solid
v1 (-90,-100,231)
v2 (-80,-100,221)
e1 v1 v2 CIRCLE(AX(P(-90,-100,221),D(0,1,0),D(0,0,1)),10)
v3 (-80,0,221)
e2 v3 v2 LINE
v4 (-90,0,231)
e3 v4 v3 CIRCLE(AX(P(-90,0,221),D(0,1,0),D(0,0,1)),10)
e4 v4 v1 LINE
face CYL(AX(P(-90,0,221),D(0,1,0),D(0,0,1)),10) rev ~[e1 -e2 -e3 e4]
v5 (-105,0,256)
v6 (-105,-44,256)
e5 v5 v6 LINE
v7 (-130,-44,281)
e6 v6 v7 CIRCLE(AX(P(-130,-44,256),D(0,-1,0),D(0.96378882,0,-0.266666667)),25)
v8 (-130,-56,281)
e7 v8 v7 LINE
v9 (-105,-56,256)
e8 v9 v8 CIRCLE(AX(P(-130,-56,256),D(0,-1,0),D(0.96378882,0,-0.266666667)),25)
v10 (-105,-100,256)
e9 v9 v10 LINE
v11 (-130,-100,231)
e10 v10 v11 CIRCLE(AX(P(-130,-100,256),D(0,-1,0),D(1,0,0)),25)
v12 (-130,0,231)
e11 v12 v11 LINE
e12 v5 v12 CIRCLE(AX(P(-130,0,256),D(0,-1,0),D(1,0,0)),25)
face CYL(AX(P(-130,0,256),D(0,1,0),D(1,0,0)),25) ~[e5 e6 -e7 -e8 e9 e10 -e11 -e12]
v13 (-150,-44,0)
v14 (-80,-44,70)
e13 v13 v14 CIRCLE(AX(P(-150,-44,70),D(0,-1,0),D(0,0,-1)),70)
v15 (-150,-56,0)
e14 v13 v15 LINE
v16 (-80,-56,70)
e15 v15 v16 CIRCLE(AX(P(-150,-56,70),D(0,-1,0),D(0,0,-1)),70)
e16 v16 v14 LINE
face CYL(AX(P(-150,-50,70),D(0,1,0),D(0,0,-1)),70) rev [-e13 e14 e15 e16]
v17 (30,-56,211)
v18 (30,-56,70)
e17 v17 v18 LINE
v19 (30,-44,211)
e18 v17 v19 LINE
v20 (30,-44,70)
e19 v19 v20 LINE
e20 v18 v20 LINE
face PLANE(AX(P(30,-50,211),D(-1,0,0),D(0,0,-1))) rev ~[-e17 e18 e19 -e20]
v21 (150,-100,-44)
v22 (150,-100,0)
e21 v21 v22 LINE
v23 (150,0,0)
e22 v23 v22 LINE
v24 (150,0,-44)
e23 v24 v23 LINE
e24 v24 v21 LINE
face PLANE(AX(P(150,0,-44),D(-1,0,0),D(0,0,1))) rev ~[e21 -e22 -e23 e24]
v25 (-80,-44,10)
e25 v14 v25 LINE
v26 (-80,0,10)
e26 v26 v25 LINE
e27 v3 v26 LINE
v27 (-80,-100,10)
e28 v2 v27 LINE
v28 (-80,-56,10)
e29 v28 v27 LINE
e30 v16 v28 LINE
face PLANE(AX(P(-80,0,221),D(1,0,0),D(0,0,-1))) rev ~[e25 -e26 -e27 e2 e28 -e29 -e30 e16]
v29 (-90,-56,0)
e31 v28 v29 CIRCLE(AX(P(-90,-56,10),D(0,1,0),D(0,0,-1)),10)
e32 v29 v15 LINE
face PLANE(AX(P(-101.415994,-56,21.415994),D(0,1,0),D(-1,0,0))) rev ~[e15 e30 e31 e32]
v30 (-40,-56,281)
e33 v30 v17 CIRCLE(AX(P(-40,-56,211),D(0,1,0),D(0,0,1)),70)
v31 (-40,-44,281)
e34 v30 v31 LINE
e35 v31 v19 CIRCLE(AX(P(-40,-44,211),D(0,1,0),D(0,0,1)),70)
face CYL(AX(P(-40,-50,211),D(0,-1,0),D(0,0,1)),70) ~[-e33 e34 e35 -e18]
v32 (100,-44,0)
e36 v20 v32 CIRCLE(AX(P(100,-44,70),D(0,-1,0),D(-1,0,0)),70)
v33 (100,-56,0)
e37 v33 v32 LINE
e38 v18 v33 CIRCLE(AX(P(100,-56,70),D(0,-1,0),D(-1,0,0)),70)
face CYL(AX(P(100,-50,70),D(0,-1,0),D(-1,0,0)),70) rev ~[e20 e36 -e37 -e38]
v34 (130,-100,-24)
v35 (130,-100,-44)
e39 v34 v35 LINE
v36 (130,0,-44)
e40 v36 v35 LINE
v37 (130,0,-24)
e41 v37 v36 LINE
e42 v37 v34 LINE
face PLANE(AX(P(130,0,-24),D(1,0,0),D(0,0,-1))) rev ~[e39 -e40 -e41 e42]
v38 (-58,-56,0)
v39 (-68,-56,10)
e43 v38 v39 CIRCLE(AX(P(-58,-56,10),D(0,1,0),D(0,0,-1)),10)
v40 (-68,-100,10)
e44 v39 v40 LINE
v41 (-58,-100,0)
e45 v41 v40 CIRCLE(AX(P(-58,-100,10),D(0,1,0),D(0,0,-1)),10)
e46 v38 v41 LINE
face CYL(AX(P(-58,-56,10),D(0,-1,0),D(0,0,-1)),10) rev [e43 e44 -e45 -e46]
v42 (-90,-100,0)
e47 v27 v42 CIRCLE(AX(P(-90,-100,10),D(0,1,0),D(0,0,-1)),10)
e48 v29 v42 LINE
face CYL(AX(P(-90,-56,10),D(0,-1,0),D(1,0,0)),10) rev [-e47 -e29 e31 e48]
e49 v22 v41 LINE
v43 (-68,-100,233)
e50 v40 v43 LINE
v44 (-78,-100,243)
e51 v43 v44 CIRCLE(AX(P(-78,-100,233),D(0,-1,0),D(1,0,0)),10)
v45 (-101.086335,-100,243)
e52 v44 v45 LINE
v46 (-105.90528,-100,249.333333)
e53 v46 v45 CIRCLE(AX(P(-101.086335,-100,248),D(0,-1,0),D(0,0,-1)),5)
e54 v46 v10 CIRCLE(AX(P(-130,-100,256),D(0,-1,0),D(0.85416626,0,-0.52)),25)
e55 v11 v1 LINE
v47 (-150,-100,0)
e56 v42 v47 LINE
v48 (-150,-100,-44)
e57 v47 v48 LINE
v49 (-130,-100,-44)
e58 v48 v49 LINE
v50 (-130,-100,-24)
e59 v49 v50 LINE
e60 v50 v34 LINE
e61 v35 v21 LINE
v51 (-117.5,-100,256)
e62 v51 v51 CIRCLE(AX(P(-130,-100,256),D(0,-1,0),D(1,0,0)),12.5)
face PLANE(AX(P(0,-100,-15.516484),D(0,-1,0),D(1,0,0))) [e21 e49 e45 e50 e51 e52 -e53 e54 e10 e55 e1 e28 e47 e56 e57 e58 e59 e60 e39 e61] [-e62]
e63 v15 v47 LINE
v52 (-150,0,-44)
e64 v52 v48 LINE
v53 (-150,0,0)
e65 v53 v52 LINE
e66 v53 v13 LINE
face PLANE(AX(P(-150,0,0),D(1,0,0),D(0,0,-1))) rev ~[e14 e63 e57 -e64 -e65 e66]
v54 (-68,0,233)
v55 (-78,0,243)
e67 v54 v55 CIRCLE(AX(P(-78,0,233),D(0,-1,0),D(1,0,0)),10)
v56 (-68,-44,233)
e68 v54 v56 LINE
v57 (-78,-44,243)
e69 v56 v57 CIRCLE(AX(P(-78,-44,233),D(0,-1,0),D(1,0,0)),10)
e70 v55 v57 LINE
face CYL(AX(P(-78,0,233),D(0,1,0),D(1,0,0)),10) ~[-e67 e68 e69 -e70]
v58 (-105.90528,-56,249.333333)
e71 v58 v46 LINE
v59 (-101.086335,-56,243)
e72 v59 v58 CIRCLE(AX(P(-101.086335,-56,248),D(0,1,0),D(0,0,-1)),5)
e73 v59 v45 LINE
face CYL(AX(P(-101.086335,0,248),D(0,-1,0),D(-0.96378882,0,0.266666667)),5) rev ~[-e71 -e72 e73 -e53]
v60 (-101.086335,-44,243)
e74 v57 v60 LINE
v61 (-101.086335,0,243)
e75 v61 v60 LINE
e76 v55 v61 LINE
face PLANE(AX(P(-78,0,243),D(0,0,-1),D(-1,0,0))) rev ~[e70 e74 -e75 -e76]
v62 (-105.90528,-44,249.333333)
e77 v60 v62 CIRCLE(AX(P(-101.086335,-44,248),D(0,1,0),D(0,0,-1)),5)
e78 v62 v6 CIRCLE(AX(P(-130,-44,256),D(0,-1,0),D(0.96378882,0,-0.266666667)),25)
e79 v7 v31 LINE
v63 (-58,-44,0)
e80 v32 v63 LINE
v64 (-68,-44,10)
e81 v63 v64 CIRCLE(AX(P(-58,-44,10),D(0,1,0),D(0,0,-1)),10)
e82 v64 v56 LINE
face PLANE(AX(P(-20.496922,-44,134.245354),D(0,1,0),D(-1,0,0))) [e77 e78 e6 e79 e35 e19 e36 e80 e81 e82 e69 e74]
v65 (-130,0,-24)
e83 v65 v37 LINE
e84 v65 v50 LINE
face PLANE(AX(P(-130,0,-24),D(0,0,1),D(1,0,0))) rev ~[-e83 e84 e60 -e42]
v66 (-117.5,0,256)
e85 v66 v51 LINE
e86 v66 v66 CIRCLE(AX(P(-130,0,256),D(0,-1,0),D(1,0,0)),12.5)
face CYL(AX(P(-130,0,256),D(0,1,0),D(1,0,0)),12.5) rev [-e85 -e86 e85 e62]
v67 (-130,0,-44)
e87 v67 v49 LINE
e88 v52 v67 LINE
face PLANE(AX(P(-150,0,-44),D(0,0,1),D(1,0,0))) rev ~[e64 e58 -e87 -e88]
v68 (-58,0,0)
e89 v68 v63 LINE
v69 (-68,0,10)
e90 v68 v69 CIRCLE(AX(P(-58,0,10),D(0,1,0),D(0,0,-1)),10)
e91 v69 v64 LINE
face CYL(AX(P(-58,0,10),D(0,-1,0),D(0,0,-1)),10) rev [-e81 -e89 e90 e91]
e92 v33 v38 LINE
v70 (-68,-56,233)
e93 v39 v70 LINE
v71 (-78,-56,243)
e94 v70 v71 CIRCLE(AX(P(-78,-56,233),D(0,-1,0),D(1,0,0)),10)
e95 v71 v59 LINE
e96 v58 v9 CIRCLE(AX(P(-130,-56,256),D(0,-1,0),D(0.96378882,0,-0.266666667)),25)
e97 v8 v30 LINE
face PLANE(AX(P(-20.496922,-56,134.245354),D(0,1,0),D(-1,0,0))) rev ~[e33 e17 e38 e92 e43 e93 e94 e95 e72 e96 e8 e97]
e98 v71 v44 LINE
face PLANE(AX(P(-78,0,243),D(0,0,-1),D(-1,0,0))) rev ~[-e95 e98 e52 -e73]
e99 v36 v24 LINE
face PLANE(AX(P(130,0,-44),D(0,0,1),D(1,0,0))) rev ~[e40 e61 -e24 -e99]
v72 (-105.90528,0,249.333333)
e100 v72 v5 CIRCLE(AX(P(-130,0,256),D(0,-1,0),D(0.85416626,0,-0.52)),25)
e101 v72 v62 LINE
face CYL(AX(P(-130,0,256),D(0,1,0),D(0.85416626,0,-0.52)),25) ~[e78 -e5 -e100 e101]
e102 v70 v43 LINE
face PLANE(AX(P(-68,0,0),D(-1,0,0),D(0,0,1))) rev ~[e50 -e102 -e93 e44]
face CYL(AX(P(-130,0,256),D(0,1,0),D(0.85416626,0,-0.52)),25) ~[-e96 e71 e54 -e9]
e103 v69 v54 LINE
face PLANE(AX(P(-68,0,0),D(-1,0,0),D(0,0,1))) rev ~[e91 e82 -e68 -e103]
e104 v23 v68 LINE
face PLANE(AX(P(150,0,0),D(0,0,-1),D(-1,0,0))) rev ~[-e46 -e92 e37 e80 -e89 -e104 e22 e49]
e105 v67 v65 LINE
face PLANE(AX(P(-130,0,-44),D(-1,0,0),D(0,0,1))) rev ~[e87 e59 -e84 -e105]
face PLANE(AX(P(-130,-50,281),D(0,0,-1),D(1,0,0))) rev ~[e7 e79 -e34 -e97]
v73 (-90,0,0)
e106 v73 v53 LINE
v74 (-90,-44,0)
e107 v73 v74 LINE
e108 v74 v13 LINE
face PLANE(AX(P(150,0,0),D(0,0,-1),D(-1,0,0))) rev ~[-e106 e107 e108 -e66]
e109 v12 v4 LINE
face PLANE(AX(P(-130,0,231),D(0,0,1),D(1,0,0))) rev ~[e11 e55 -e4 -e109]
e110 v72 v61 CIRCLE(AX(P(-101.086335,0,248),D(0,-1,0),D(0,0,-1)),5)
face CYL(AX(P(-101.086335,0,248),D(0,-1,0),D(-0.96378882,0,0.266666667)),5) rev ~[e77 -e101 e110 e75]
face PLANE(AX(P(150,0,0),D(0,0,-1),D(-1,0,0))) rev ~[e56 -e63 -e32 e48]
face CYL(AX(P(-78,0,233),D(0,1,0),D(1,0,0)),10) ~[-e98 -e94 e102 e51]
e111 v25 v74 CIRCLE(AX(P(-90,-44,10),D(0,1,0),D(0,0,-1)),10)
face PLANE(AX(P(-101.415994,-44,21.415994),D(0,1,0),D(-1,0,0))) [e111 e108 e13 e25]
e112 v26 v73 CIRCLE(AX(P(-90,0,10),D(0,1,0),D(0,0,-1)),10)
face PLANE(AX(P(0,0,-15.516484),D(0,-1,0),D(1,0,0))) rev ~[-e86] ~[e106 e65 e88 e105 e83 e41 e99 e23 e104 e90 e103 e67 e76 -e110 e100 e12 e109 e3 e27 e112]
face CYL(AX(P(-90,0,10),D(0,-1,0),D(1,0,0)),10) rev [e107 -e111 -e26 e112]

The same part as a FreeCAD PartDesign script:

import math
import FreeCAD as App
import Part
import Sketcher

V = App.Vector


def edges_at(feature, points):
    """Names of the edges that pass closest to the given points."""
    edges = feature.Shape.Edges
    near = lambda p: min(range(len(edges)), key=lambda i: edges[i].distToShape(Part.Vertex(*p))[0])
    return sorted({f"Edge{near(p) + 1}" for p in points})

doc = App.newDocument("Part")
body = doc.addObject("PartDesign::Body", "Body")

# Sketch on XZ plane
sketch1 = body.newObject("Sketcher::SketchObject", "Sketch")
sketch1.AttachmentSupport = (doc.getObject("XZ_Plane"), [""])
sketch1.MapMode = "FlatFace"
sketch1.addGeometry([
    Part.LineSegment(V(-150, 0, 0), V(-150, -44, 0)),  # 0
    Part.LineSegment(V(-150, -44, 0), V(-130, -44, 0)),  # 1
    Part.LineSegment(V(-130, -44, 0), V(-130, -24, 0)),  # 2
    Part.LineSegment(V(-130, -24, 0), V(130, -24, 0)),  # 3
    Part.LineSegment(V(130, -24, 0), V(130, -44, 0)),  # 4
    Part.LineSegment(V(130, -44, 0), V(150, -44, 0)),  # 5
    Part.LineSegment(V(150, -44, 0), V(150, 0, 0)),  # 6
    Part.LineSegment(V(150, 0, 0), V(-150, 0, 0)),  # 7
], False)
sketch1.addConstraint([
    Sketcher.Constraint("Coincident", 0, 2, 1, 1),
    Sketcher.Constraint("Coincident", 1, 2, 2, 1),
    Sketcher.Constraint("Coincident", 2, 2, 3, 1),
    Sketcher.Constraint("Coincident", 3, 2, 4, 1),
    Sketcher.Constraint("Coincident", 4, 2, 5, 1),
    Sketcher.Constraint("Coincident", 5, 2, 6, 1),
    Sketcher.Constraint("Coincident", 6, 2, 7, 1),
    Sketcher.Constraint("Coincident", 7, 2, 0, 1),
    Sketcher.Constraint("Vertical", 0),
    Sketcher.Constraint("Horizontal", 1),
    Sketcher.Constraint("Vertical", 2),
    Sketcher.Constraint("Horizontal", 3),
    Sketcher.Constraint("Vertical", 4),
    Sketcher.Constraint("Horizontal", 5),
    Sketcher.Constraint("Vertical", 6),
    Sketcher.Constraint("Horizontal", 7),
    Sketcher.Constraint("Symmetric", 6, 2, 7, 2, -1, 1),
    Sketcher.Constraint("Symmetric", 1, 2, 4, 2, -2),
    Sketcher.Constraint("Equal", 5, 2),
    Sketcher.Constraint("DistanceX", 1, 1, 1, 2, 20.0),
    Sketcher.Constraint("DistanceX", 3, 1, 3, 2, 260.0),
    Sketcher.Constraint("DistanceY", 0, 2, 0, 1, 44.0),
])
pad1 = body.newObject("PartDesign::Pad", "Pad")
pad1.Profile = sketch1
pad1.Length = 100

# Sketch on XZ plane
sketch2 = body.newObject("Sketcher::SketchObject", "Sketch001")
sketch2.AttachmentSupport = (doc.getObject("XZ_Plane"), [""])
sketch2.MapMode = "FlatFace"
sketch2.addGeometry([
    Part.LineSegment(V(-80, 221, 0), V(-80, 0, 0)),  # 0
    Part.LineSegment(V(-80, 0, 0), V(-68, 0, 0)),  # 1
    Part.LineSegment(V(-68, 0, 0), V(-68, 233, 0)),  # 2
    Part.ArcOfCircle(Part.Circle(V(-78, 233, 0), V(0, 0, 1), 10), math.radians(0), math.radians(90)),  # 3
    Part.LineSegment(V(-78, 243, 0), V(-109, 243, 0)),  # 4
    Part.ArcOfCircle(Part.Circle(V(-130, 256, 0), V(0, 0, 1), 25), math.radians(-31), math.radians(0)),  # 5
    Part.ArcOfCircle(Part.Circle(V(-130, 256, 0), V(0, 0, 1), 25), math.radians(0), math.radians(270)),  # 6
    Part.LineSegment(V(-130, 231, 0), V(-90, 231, 0)),  # 7
    Part.ArcOfCircle(Part.Circle(V(-90, 221, 0), V(0, 0, 1), 10), math.radians(0), math.radians(90)),  # 8
    Part.Circle(V(-130, 256, 0), V(0, 0, 1), 12),  # 9
], False)
sketch2.addConstraint([
    Sketcher.Constraint("Coincident", 0, 2, 1, 1),
    Sketcher.Constraint("Coincident", 1, 2, 2, 1),
    Sketcher.Constraint("Tangent", 2, 2, 3, 1),
    Sketcher.Constraint("Tangent", 3, 2, 4, 1),
    Sketcher.Constraint("Coincident", 4, 2, 5, 1),
    Sketcher.Constraint("Tangent", 5, 2, 6, 1),
    Sketcher.Constraint("Tangent", 6, 2, 7, 1),
    Sketcher.Constraint("Tangent", 7, 2, 8, 2),
    Sketcher.Constraint("Tangent", 8, 1, 0, 1),
    Sketcher.Constraint("Vertical", 0),
    Sketcher.Constraint("Horizontal", 1),
    Sketcher.Constraint("Vertical", 2),
    Sketcher.Constraint("Horizontal", 4),
    Sketcher.Constraint("Horizontal", 7),
    Sketcher.Constraint("Coincident", 9, 3, 5, 3),
    Sketcher.Constraint("Equal", 5, 6),
    Sketcher.Constraint("Equal", 3, 8),
    Sketcher.Constraint("PointOnObject", 0, 2, -1),
    Sketcher.Constraint("Horizontal", 9, 3, 5, 2),
    Sketcher.Constraint("Diameter", 9, 25.0),
    Sketcher.Constraint("Radius", 3, 10.0),
    Sketcher.Constraint("Radius", 5, 25.0),
    Sketcher.Constraint("DistanceX", 1, 1, 1, 2, 12.0),
    Sketcher.Constraint("DistanceX", 7, 1, 7, 2, 40.0),
    Sketcher.Constraint("DistanceY", 0, 2, 0, 1, 221.0),
    Sketcher.Constraint("DistanceY", 2, 1, 2, 2, 233.0),
    Sketcher.Constraint("DistanceX", 3, 3, -1, 1, 78.0),
])
pad2 = body.newObject("PartDesign::Pad", "Pad001")
pad2.Profile = sketch2
pad2.Length = 100
doc.recompute()

fillet = body.newObject("PartDesign::Fillet", "Fillet")
fillet.Base = (pad2, edges_at(pad2, [(-108.646, -50, 243)]))
fillet.Radius = 5

# Sketch on XZ plane
sketch3 = body.newObject("Sketcher::SketchObject", "Sketch002")
sketch3.AttachmentSupport = (doc.getObject("XZ_Plane"), [""])
sketch3.MapMode = "FlatFace"
sketch3.AttachmentOffset = App.Placement(V(0, 0, 50), App.Rotation())
sketch3.addGeometry([
    Part.ArcOfCircle(Part.Circle(V(-130, 256, 0), V(0, 0, 1), 25), math.radians(-15), math.radians(90)),  # 0
    Part.LineSegment(V(-130, 281, 0), V(-40, 281, 0)),  # 1
    Part.ArcOfCircle(Part.Circle(V(-40, 211, 0), V(0, 0, 1), 70), math.radians(0), math.radians(90)),  # 2
    Part.LineSegment(V(30, 211, 0), V(30, 70, 0)),  # 3
    Part.ArcOfCircle(Part.Circle(V(100, 70, 0), V(0, 0, 1), 70), math.radians(180), math.radians(270)),  # 4
    Part.LineSegment(V(100, 0, 0), V(-68, 0, 0)),  # 5
    Part.LineSegment(V(-68, 0, 0), V(-68, 233, 0)),  # 6
    Part.ArcOfCircle(Part.Circle(V(-78, 233, 0), V(0, 0, 1), 10), math.radians(0), math.radians(90)),  # 7
    Part.LineSegment(V(-78, 243, 0), V(-101, 243, 0)),  # 8
    Part.ArcOfCircle(Part.Circle(V(-101, 248, 0), V(0, 0, 1), 5), math.radians(165), math.radians(270)),  # 9
    Part.ArcOfCircle(Part.Circle(V(-150, 70, 0), V(0, 0, 1), 70), math.radians(-90), math.radians(0)),  # 10
    Part.LineSegment(V(-80, 70, 0), V(-80, 0, 0)),  # 11
    Part.LineSegment(V(-80, 0, 0), V(-150, 0, 0)),  # 12
], False)
sketch3.addConstraint([
    Sketcher.Constraint("Tangent", 0, 2, 1, 1),
    Sketcher.Constraint("Tangent", 1, 2, 2, 2),
    Sketcher.Constraint("Tangent", 2, 1, 3, 1),
    Sketcher.Constraint("Tangent", 3, 2, 4, 1),
    Sketcher.Constraint("Tangent", 4, 2, 5, 1),
    Sketcher.Constraint("Coincident", 5, 2, 6, 1),
    Sketcher.Constraint("Tangent", 6, 2, 7, 1),
    Sketcher.Constraint("Tangent", 7, 2, 8, 1),
    Sketcher.Constraint("Tangent", 8, 2, 9, 2),
    Sketcher.Constraint("Tangent", 9, 1, 0, 1),
    Sketcher.Constraint("Tangent", 10, 2, 11, 1),
    Sketcher.Constraint("Coincident", 11, 2, 12, 1),
    Sketcher.Constraint("Tangent", 12, 2, 10, 1),
    Sketcher.Constraint("Horizontal", 1),
    Sketcher.Constraint("Vertical", 3),
    Sketcher.Constraint("Horizontal", 5),
    Sketcher.Constraint("Vertical", 6),
    Sketcher.Constraint("Horizontal", 8),
    Sketcher.Constraint("Vertical", 11),
    Sketcher.Constraint("Horizontal", 12),
    Sketcher.Constraint("Equal", 2, 4),
    Sketcher.Constraint("Equal", 4, 10),
    Sketcher.Constraint("PointOnObject", 4, 2, -1),
    Sketcher.Constraint("PointOnObject", 11, 2, -1),
    Sketcher.Constraint("Radius", 0, 25.0),
    Sketcher.Constraint("Radius", 2, 70.0),
    Sketcher.Constraint("Radius", 7, 10.0),
    Sketcher.Constraint("Radius", 9, 5.0),
    Sketcher.Constraint("DistanceX", 1, 1, 1, 2, 90.0),
    Sketcher.Constraint("DistanceX", 5, 2, 5, 1, 168.0),
    Sketcher.Constraint("DistanceY", 3, 2, 3, 1, 141.0),
    Sketcher.Constraint("DistanceY", 6, 1, 6, 2, 233.0),
    Sketcher.Constraint("DistanceX", 0, 3, -1, 1, 130.0),
    Sketcher.Constraint("DistanceX", 10, 3, -1, 1, 150.0),
])
pad3 = body.newObject("PartDesign::Pad", "Pad002")
pad3.Profile = sketch3
pad3.Length = 12
pad3.Midplane = True
doc.recompute()

fillet2 = body.newObject("PartDesign::Fillet", "Fillet001")
fillet2.Base = (pad3, edges_at(pad3, [
    (-80, -78, 0),
    (-80, -22, 0),
    (-68, -22, 0),
    (-68, -78, 0),
]))
fillet2.Radius = 10

doc.recompute()
